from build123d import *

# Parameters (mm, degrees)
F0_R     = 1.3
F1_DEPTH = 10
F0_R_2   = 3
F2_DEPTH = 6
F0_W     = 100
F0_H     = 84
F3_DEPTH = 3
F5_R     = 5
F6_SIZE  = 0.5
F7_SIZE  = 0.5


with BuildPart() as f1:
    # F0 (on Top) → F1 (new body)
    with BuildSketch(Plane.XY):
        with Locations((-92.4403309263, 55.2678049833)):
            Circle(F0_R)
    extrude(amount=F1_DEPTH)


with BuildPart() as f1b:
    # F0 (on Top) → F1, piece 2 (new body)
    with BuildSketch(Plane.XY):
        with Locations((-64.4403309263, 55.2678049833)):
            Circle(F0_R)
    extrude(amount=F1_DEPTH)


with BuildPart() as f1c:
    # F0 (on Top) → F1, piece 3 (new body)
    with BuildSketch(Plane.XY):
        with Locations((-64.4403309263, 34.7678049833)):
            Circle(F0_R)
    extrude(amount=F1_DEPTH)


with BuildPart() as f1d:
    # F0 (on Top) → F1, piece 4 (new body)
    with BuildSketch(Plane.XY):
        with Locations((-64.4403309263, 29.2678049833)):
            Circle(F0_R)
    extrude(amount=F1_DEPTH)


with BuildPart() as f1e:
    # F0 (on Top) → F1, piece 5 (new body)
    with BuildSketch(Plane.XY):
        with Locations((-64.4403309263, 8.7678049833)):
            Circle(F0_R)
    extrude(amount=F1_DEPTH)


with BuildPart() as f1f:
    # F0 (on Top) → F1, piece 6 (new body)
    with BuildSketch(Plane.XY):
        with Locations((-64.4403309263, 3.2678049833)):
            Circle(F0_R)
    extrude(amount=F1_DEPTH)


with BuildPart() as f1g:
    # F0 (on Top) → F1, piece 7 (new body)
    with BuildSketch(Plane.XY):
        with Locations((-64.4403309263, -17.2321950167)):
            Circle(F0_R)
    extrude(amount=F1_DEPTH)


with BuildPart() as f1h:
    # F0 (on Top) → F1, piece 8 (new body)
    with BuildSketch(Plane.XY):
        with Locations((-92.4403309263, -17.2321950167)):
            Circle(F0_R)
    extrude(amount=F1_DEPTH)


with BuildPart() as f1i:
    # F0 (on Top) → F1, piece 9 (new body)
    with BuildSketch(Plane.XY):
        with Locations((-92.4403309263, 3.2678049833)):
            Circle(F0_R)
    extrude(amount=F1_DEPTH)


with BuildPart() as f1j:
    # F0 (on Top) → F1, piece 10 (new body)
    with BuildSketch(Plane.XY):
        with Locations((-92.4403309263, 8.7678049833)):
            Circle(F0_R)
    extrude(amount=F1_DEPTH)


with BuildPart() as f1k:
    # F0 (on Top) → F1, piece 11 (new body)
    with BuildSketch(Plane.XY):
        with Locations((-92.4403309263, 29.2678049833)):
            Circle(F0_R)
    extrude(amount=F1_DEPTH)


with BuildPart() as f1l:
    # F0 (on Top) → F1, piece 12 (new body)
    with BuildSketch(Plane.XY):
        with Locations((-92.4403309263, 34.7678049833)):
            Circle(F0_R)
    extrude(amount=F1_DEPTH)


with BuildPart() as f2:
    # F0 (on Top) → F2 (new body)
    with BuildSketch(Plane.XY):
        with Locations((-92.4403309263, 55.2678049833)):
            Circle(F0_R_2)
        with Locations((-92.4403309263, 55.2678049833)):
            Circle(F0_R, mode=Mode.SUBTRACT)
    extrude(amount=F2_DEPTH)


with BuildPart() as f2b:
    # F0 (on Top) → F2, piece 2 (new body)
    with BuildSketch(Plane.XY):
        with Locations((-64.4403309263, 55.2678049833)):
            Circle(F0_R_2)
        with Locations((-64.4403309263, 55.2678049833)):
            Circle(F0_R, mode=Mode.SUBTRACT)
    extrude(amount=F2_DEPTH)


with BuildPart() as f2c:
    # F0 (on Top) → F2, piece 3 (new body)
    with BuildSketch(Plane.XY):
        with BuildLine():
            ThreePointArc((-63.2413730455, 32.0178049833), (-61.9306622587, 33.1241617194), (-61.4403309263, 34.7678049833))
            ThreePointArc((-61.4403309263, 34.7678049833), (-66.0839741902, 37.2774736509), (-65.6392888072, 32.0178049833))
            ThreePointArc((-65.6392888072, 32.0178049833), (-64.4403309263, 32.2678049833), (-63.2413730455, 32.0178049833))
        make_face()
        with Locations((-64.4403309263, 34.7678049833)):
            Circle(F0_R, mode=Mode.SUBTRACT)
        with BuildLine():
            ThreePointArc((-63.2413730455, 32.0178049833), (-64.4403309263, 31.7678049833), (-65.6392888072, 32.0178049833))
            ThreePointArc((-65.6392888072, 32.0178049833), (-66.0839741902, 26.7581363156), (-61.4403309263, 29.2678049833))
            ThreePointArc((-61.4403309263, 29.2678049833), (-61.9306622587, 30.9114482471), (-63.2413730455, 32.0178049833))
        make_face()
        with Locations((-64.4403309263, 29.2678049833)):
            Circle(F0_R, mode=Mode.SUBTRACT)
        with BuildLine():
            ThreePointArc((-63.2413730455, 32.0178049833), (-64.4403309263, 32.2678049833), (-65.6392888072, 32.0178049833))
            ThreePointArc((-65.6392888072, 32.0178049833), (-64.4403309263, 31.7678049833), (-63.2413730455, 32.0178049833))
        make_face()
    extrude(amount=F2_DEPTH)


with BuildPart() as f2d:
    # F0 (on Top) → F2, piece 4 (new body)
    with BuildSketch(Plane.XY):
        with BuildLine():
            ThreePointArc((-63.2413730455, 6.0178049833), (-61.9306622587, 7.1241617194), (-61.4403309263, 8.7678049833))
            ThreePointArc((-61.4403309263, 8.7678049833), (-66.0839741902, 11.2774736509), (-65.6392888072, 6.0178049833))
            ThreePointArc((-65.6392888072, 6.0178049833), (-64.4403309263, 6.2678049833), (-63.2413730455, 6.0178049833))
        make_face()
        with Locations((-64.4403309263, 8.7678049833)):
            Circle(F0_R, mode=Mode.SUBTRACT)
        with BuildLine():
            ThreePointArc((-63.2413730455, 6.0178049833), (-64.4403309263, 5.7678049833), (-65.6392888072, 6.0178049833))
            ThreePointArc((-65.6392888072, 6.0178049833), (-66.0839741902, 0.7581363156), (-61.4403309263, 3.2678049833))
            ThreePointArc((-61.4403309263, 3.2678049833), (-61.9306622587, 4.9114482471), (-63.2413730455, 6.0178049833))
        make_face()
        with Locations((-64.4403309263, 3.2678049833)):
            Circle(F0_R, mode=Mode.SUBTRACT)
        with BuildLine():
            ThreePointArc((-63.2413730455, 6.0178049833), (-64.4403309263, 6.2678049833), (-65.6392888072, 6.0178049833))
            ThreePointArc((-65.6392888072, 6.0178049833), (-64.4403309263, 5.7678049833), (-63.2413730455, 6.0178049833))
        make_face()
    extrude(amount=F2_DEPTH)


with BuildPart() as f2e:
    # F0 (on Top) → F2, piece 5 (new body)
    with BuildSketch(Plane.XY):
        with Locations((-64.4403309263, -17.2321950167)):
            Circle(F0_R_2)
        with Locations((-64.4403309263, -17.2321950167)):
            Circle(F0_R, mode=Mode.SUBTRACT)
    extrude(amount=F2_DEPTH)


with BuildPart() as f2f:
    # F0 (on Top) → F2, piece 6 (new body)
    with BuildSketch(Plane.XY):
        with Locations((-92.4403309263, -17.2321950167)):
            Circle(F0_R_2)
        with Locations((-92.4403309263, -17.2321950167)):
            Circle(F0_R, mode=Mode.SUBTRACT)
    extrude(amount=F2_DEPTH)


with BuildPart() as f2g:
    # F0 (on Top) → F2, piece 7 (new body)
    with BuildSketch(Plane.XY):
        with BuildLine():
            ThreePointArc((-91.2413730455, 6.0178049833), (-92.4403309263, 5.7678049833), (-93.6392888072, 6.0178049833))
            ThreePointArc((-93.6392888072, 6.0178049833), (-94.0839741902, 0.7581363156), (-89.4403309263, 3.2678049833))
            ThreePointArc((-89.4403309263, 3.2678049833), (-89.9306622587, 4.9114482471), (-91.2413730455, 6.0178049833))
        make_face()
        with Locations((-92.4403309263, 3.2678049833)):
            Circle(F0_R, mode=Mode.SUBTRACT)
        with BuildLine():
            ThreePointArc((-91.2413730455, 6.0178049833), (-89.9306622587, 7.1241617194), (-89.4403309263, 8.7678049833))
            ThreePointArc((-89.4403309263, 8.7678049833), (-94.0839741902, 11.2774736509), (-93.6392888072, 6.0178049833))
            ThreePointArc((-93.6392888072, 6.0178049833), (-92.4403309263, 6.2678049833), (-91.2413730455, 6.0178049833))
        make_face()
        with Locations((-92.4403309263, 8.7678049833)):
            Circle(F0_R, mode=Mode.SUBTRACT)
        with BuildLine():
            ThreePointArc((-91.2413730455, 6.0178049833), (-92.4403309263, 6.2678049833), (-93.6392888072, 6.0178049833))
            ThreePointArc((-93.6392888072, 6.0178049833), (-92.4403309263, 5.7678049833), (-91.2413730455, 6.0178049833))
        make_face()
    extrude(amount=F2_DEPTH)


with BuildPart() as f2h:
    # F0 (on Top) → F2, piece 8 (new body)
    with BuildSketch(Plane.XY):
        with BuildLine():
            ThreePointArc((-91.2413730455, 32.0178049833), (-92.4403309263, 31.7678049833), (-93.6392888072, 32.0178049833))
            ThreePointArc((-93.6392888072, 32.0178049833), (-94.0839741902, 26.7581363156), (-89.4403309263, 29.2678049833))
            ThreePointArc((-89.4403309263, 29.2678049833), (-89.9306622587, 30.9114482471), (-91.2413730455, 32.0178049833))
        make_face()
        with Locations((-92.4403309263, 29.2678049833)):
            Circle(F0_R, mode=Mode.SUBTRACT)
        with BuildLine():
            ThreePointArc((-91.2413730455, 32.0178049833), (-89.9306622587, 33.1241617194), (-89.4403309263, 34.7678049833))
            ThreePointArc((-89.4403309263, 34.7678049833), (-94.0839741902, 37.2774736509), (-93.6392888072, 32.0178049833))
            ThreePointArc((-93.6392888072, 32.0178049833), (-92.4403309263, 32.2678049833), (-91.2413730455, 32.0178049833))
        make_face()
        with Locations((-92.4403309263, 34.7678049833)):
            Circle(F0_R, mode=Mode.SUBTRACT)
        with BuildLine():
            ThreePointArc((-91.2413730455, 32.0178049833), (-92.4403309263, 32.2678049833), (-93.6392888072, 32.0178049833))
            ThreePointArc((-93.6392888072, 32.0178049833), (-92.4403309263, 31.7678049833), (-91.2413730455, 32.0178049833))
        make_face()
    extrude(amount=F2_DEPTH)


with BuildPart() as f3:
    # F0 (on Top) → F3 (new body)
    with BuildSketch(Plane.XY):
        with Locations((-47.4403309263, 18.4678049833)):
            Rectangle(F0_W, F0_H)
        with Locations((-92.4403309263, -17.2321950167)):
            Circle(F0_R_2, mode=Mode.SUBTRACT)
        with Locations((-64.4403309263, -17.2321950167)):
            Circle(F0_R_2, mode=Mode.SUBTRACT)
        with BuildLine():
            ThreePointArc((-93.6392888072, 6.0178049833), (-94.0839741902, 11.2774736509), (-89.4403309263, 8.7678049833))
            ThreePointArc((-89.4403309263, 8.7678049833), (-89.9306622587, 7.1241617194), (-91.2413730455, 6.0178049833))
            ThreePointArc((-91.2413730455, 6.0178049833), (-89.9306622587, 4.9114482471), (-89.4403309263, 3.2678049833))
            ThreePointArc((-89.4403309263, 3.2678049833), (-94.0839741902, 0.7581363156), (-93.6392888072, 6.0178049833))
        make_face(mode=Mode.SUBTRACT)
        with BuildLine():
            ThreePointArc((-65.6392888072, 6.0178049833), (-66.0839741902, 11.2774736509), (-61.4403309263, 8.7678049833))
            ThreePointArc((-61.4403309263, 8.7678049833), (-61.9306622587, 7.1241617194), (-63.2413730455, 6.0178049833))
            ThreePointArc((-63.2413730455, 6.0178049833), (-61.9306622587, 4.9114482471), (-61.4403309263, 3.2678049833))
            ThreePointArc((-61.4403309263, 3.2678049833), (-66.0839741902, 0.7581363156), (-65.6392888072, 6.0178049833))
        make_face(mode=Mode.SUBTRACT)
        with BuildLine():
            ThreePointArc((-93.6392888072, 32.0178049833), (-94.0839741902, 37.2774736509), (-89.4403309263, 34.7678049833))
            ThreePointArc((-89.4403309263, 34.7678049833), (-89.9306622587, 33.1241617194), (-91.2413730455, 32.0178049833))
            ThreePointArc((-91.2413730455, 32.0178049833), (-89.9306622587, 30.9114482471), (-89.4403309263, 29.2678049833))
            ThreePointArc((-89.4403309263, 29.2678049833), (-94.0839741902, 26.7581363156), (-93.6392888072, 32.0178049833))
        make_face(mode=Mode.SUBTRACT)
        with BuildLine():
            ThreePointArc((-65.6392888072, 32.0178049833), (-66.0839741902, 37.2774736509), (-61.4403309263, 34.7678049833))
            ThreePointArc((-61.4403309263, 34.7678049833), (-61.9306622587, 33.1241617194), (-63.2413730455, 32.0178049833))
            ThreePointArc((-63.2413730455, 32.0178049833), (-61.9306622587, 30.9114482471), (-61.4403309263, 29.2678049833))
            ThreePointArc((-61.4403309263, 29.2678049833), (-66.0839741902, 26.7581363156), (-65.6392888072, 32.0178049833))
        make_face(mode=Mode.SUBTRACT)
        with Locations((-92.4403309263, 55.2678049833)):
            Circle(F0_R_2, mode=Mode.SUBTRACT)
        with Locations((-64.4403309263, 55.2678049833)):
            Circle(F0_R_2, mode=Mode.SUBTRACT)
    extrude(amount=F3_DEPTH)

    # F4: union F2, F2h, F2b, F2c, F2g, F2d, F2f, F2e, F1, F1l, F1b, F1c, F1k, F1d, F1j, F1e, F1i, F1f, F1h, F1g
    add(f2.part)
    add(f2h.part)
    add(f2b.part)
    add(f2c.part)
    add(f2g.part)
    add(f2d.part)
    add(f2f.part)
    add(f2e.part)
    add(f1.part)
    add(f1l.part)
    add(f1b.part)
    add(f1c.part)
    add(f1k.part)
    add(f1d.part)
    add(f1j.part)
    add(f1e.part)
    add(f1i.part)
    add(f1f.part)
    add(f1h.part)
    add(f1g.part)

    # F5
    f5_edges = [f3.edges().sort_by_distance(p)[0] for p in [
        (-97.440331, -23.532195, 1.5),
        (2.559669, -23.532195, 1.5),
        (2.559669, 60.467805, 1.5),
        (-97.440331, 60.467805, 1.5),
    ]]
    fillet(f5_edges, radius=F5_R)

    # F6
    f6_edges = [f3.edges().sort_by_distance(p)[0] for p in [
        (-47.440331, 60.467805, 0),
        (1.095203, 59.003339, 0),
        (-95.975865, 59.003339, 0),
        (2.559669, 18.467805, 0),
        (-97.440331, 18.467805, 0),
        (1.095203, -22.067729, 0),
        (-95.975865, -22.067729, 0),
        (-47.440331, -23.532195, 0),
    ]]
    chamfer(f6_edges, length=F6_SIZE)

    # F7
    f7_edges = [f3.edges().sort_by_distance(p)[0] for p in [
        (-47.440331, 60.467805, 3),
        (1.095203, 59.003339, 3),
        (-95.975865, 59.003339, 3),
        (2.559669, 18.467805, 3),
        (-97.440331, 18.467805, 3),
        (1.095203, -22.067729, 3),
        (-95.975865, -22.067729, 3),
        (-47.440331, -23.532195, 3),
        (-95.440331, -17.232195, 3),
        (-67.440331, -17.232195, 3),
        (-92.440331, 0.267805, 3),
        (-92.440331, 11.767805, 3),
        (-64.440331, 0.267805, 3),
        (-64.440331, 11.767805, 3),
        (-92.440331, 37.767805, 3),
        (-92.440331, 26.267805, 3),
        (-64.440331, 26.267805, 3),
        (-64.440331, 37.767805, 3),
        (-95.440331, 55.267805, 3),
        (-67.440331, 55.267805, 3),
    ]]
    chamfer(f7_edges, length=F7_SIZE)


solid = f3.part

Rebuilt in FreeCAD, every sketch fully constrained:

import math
import FreeCAD as App
import Part
import Sketcher

V = App.Vector


def edges_at(feature, points):
    """Names of the edges that pass closest to the given points."""
    edges = feature.Shape.Edges
    near = lambda p: min(range(len(edges)), key=lambda i: edges[i].distToShape(Part.Vertex(*p))[0])
    return sorted({f"Edge{near(p) + 1}" for p in points})

doc = App.newDocument("Part")
params = doc.addObject("Spreadsheet::Sheet", "Params")
for row, (alias, value) in enumerate([
    ("sketch1_diameter", "2.6 mm"),
    ("pad1_length", "10 mm"),
    ("sketch2_diameter", "2.6 mm"),
    ("pad2_length", "10 mm"),
    ("sketch3_diameter", "2.6 mm"),
    ("pad3_length", "10 mm"),
    ("sketch4_diameter", "2.6 mm"),
    ("pad4_length", "10 mm"),
    ("sketch5_diameter", "2.6 mm"),
    ("pad5_length", "10 mm"),
    ("sketch6_diameter", "2.6 mm"),
    ("pad6_length", "10 mm"),
    ("sketch7_diameter", "2.6 mm"),
    ("pad7_length", "10 mm"),
    ("sketch8_diameter", "2.6 mm"),
    ("pad8_length", "10 mm"),
    ("sketch9_diameter", "2.6 mm"),
    ("pad9_length", "10 mm"),
    ("sketch10_diameter", "2.6 mm"),
    ("pad10_length", "10 mm"),
    ("sketch11_diameter", "2.6 mm"),
    ("pad11_length", "10 mm"),
    ("sketch12_diameter", "2.6 mm"),
    ("pad12_length", "10 mm"),
    ("sketch13_diameter", "6 mm"),
    ("sketch13_diameter2", "2.6 mm"),
    ("pad13_length", "6 mm"),
    ("sketch14_diameter", "6 mm"),
    ("sketch14_diameter2", "2.6 mm"),
    ("pad14_length", "6 mm"),
    ("sketch15_radius", "3 mm"),
    ("sketch15_diameter", "2.6 mm"),
    ("pad15_length", "6 mm"),
    ("sketch16_radius", "3 mm"),
    ("sketch16_diameter", "2.6 mm"),
    ("pad16_length", "6 mm"),
    ("sketch17_diameter", "6 mm"),
    ("sketch17_diameter2", "2.6 mm"),
    ("pad17_length", "6 mm"),
    ("sketch18_diameter", "6 mm"),
    ("sketch18_diameter2", "2.6 mm"),
    ("pad18_length", "6 mm"),
    ("sketch19_radius", "3 mm"),
    ("sketch19_diameter", "2.6 mm"),
    ("pad19_length", "6 mm"),
    ("sketch20_radius", "3 mm"),
    ("sketch20_diameter", "2.6 mm"),
    ("pad20_length", "6 mm"),
    ("sketch21_diameter", "6 mm"),
    ("sketch21_width", "100 mm"),
    ("sketch21_height", "84 mm"),
    ("pad21_length", "3 mm"),
    ("fillet_radius", "5 mm"),
    ("chamfer_size", "0.5 mm"),
    ("chamfer2_size", "0.5 mm"),
], start=1):
    params.set(f"A{row}", alias)
    params.set(f"B{row}", "=" + value)
    params.setAlias(f"B{row}", alias)

body = doc.addObject("PartDesign::Body", "Body")

# Sketch on XY plane
sketch1 = body.newObject("Sketcher::SketchObject", "Sketch")
sketch1.AttachmentSupport = (doc.getObject("XY_Plane"), [""])
sketch1.MapMode = "FlatFace"
sketch1.addGeometry(Part.Circle(V(-92.4, 55.3, 0), V(0, 0, 1), 1.3), False)
sketch1.addConstraint(Sketcher.Constraint("Diameter", 0, 2.6))
sketch1.addConstraint(Sketcher.Constraint("DistanceX", 0, 3, -1, 1, 92.440331))
sketch1.addConstraint(Sketcher.Constraint("DistanceY", -1, 1, 0, 3, 55.267805))
sketch1.setExpression("Constraints[0]", "Params.sketch1_diameter")
pad1 = body.newObject("PartDesign::Pad", "Pad")
pad1.Profile = sketch1
pad1.setExpression("Length", "Params.pad1_length")
body2 = doc.addObject("PartDesign::Body", "Body001")

# Sketch on XY plane
sketch2 = body2.newObject("Sketcher::SketchObject", "Sketch001")
sketch2.AttachmentSupport = (doc.getObject("XY_Plane001"), [""])
sketch2.MapMode = "FlatFace"
sketch2.addGeometry(Part.Circle(V(-64.4, 55.3, 0), V(0, 0, 1), 1.3), False)
sketch2.addConstraint(Sketcher.Constraint("Diameter", 0, 2.6))
sketch2.addConstraint(Sketcher.Constraint("DistanceX", 0, 3, -1, 1, 64.440331))
sketch2.addConstraint(Sketcher.Constraint("DistanceY", -1, 1, 0, 3, 55.267805))
sketch2.setExpression("Constraints[0]", "Params.sketch2_diameter")
pad2 = body2.newObject("PartDesign::Pad", "Pad001")
pad2.Profile = sketch2
pad2.setExpression("Length", "Params.pad2_length")
body3 = doc.addObject("PartDesign::Body", "Body002")

# Sketch on XY plane
sketch3 = body3.newObject("Sketcher::SketchObject", "Sketch002")
sketch3.AttachmentSupport = (doc.getObject("XY_Plane002"), [""])
sketch3.MapMode = "FlatFace"
sketch3.addGeometry(Part.Circle(V(-64.4, 34.8, 0), V(0, 0, 1), 1.3), False)
sketch3.addConstraint(Sketcher.Constraint("Diameter", 0, 2.6))
sketch3.addConstraint(Sketcher.Constraint("DistanceX", 0, 3, -1, 1, 64.440331))
sketch3.addConstraint(Sketcher.Constraint("DistanceY", -1, 1, 0, 3, 34.767805))
sketch3.setExpression("Constraints[0]", "Params.sketch3_diameter")
pad3 = body3.newObject("PartDesign::Pad", "Pad002")
pad3.Profile = sketch3
pad3.setExpression("Length", "Params.pad3_length")
body4 = doc.addObject("PartDesign::Body", "Body003")

# Sketch on XY plane
sketch4 = body4.newObject("Sketcher::SketchObject", "Sketch003")
sketch4.AttachmentSupport = (doc.getObject("XY_Plane003"), [""])
sketch4.MapMode = "FlatFace"
sketch4.addGeometry(Part.Circle(V(-64.4, 29.3, 0), V(0, 0, 1), 1.3), False)
sketch4.addConstraint(Sketcher.Constraint("Diameter", 0, 2.6))
sketch4.addConstraint(Sketcher.Constraint("DistanceX", 0, 3, -1, 1, 64.440331))
sketch4.addConstraint(Sketcher.Constraint("DistanceY", -1, 1, 0, 3, 29.267805))
sketch4.setExpression("Constraints[0]", "Params.sketch4_diameter")
pad4 = body4.newObject("PartDesign::Pad", "Pad003")
pad4.Profile = sketch4
pad4.setExpression("Length", "Params.pad4_length")
body5 = doc.addObject("PartDesign::Body", "Body004")

# Sketch on XY plane
sketch5 = body5.newObject("Sketcher::SketchObject", "Sketch004")
sketch5.AttachmentSupport = (doc.getObject("XY_Plane004"), [""])
sketch5.MapMode = "FlatFace"
sketch5.addGeometry(Part.Circle(V(-64.4, 8.8, 0), V(0, 0, 1), 1.3), False)
sketch5.addConstraint(Sketcher.Constraint("Diameter", 0, 2.6))
sketch5.addConstraint(Sketcher.Constraint("DistanceX", 0, 3, -1, 1, 64.440331))
sketch5.addConstraint(Sketcher.Constraint("DistanceY", -1, 1, 0, 3, 8.767805))
sketch5.setExpression("Constraints[0]", "Params.sketch5_diameter")
pad5 = body5.newObject("PartDesign::Pad", "Pad004")
pad5.Profile = sketch5
pad5.setExpression("Length", "Params.pad5_length")
body6 = doc.addObject("PartDesign::Body", "Body005")

# Sketch on XY plane
sketch6 = body6.newObject("Sketcher::SketchObject", "Sketch005")
sketch6.AttachmentSupport = (doc.getObject("XY_Plane005"), [""])
sketch6.MapMode = "FlatFace"
sketch6.addGeometry(Part.Circle(V(-64.4, 3.3, 0), V(0, 0, 1), 1.3), False)
sketch6.addConstraint(Sketcher.Constraint("Diameter", 0, 2.6))
sketch6.addConstraint(Sketcher.Constraint("DistanceX", 0, 3, -1, 1, 64.440331))
sketch6.addConstraint(Sketcher.Constraint("DistanceY", -1, 1, 0, 3, 3.267805))
sketch6.setExpression("Constraints[0]", "Params.sketch6_diameter")
pad6 = body6.newObject("PartDesign::Pad", "Pad005")
pad6.Profile = sketch6
pad6.setExpression("Length", "Params.pad6_length")
body7 = doc.addObject("PartDesign::Body", "Body006")

# Sketch on XY plane
sketch7 = body7.newObject("Sketcher::SketchObject", "Sketch006")
sketch7.AttachmentSupport = (doc.getObject("XY_Plane006"), [""])
sketch7.MapMode = "FlatFace"
sketch7.addGeometry(Part.Circle(V(-64.4, -17.2, 0), V(0, 0, 1), 1.3), False)
sketch7.addConstraint(Sketcher.Constraint("Diameter", 0, 2.6))
sketch7.addConstraint(Sketcher.Constraint("DistanceX", 0, 3, -1, 1, 64.440331))
sketch7.addConstraint(Sketcher.Constraint("DistanceY", 0, 3, -1, 1, 17.232195))
sketch7.setExpression("Constraints[0]", "Params.sketch7_diameter")
pad7 = body7.newObject("PartDesign::Pad", "Pad006")
pad7.Profile = sketch7
pad7.setExpression("Length", "Params.pad7_length")
body8 = doc.addObject("PartDesign::Body", "Body007")

# Sketch on XY plane
sketch8 = body8.newObject("Sketcher::SketchObject", "Sketch007")
sketch8.AttachmentSupport = (doc.getObject("XY_Plane007"), [""])
sketch8.MapMode = "FlatFace"
sketch8.addGeometry(Part.Circle(V(-92.4, -17.2, 0), V(0, 0, 1), 1.3), False)
sketch8.addConstraint(Sketcher.Constraint("Diameter", 0, 2.6))
sketch8.addConstraint(Sketcher.Constraint("DistanceX", 0, 3, -1, 1, 92.440331))
sketch8.addConstraint(Sketcher.Constraint("DistanceY", 0, 3, -1, 1, 17.232195))
sketch8.setExpression("Constraints[0]", "Params.sketch8_diameter")
pad8 = body8.newObject("PartDesign::Pad", "Pad007")
pad8.Profile = sketch8
pad8.setExpression("Length", "Params.pad8_length")
body9 = doc.addObject("PartDesign::Body", "Body008")

# Sketch on XY plane
sketch9 = body9.newObject("Sketcher::SketchObject", "Sketch008")
sketch9.AttachmentSupport = (doc.getObject("XY_Plane008"), [""])
sketch9.MapMode = "FlatFace"
sketch9.addGeometry(Part.Circle(V(-92.4, 3.3, 0), V(0, 0, 1), 1.3), False)
sketch9.addConstraint(Sketcher.Constraint("Diameter", 0, 2.6))
sketch9.addConstraint(Sketcher.Constraint("DistanceX", 0, 3, -1, 1, 92.440331))
sketch9.addConstraint(Sketcher.Constraint("DistanceY", -1, 1, 0, 3, 3.267805))
sketch9.setExpression("Constraints[0]", "Params.sketch9_diameter")
pad9 = body9.newObject("PartDesign::Pad", "Pad008")
pad9.Profile = sketch9
pad9.setExpression("Length", "Params.pad9_length")
body10 = doc.addObject("PartDesign::Body", "Body009")

# Sketch on XY plane
sketch10 = body10.newObject("Sketcher::SketchObject", "Sketch009")
sketch10.AttachmentSupport = (doc.getObject("XY_Plane009"), [""])
sketch10.MapMode = "FlatFace"
sketch10.addGeometry(Part.Circle(V(-92.4, 8.8, 0), V(0, 0, 1), 1.3), False)
sketch10.addConstraint(Sketcher.Constraint("Diameter", 0, 2.6))
sketch10.addConstraint(Sketcher.Constraint("DistanceX", 0, 3, -1, 1, 92.440331))
sketch10.addConstraint(Sketcher.Constraint("DistanceY", -1, 1, 0, 3, 8.767805))
sketch10.setExpression("Constraints[0]", "Params.sketch10_diameter")
pad10 = body10.newObject("PartDesign::Pad", "Pad009")
pad10.Profile = sketch10
pad10.setExpression("Length", "Params.pad10_length")
body11 = doc.addObject("PartDesign::Body", "Body010")

# Sketch on XY plane
sketch11 = body11.newObject("Sketcher::SketchObject", "Sketch010")
sketch11.AttachmentSupport = (doc.getObject("XY_Plane010"), [""])
sketch11.MapMode = "FlatFace"
sketch11.addGeometry(Part.Circle(V(-92.4, 29.3, 0), V(0, 0, 1), 1.3), False)
sketch11.addConstraint(Sketcher.Constraint("Diameter", 0, 2.6))
sketch11.addConstraint(Sketcher.Constraint("DistanceX", 0, 3, -1, 1, 92.440331))
sketch11.addConstraint(Sketcher.Constraint("DistanceY", -1, 1, 0, 3, 29.267805))
sketch11.setExpression("Constraints[0]", "Params.sketch11_diameter")
pad11 = body11.newObject("PartDesign::Pad", "Pad010")
pad11.Profile = sketch11
pad11.setExpression("Length", "Params.pad11_length")
body12 = doc.addObject("PartDesign::Body", "Body011")

# Sketch on XY plane
sketch12 = body12.newObject("Sketcher::SketchObject", "Sketch011")
sketch12.AttachmentSupport = (doc.getObject("XY_Plane011"), [""])
sketch12.MapMode = "FlatFace"
sketch12.addGeometry(Part.Circle(V(-92.4, 34.8, 0), V(0, 0, 1), 1.3), False)
sketch12.addConstraint(Sketcher.Constraint("Diameter", 0, 2.6))
sketch12.addConstraint(Sketcher.Constraint("DistanceX", 0, 3, -1, 1, 92.440331))
sketch12.addConstraint(Sketcher.Constraint("DistanceY", -1, 1, 0, 3, 34.767805))
sketch12.setExpression("Constraints[0]", "Params.sketch12_diameter")
pad12 = body12.newObject("PartDesign::Pad", "Pad011")
pad12.Profile = sketch12
pad12.setExpression("Length", "Params.pad12_length")
body13 = doc.addObject("PartDesign::Body", "Body012")

# Sketch on XY plane
sketch13 = body13.newObject("Sketcher::SketchObject", "Sketch012")
sketch13.AttachmentSupport = (doc.getObject("XY_Plane012"), [""])
sketch13.MapMode = "FlatFace"
sketch13.addGeometry(Part.Circle(V(-92.4, 55.3, 0), V(0, 0, 1), 3), False)
sketch13.addGeometry(Part.Circle(V(-92.4, 55.3, 0), V(0, 0, 1), 1.3), False)
sketch13.addConstraint(Sketcher.Constraint("Coincident", 1, 3, 0, 3))
sketch13.addConstraint(Sketcher.Constraint("Diameter", 0, 6.0))
sketch13.addConstraint(Sketcher.Constraint("Diameter", 1, 2.6))
sketch13.addConstraint(Sketcher.Constraint("DistanceX", 0, 3, -1, 1, 92.440331))
sketch13.addConstraint(Sketcher.Constraint("DistanceY", -1, 1, 0, 3, 55.267805))
sketch13.setExpression("Constraints[1]", "Params.sketch13_diameter")
sketch13.setExpression("Constraints[2]", "Params.sketch13_diameter2")
pad13 = body13.newObject("PartDesign::Pad", "Pad012")
pad13.Profile = sketch13
pad13.setExpression("Length", "Params.pad13_length")
body14 = doc.addObject("PartDesign::Body", "Body013")

# Sketch on XY plane
sketch14 = body14.newObject("Sketcher::SketchObject", "Sketch013")
sketch14.AttachmentSupport = (doc.getObject("XY_Plane013"), [""])
sketch14.MapMode = "FlatFace"
sketch14.addGeometry(Part.Circle(V(-64.4, 55.3, 0), V(0, 0, 1), 3), False)
sketch14.addGeometry(Part.Circle(V(-64.4, 55.3, 0), V(0, 0, 1), 1.3), False)
sketch14.addConstraint(Sketcher.Constraint("Coincident", 1, 3, 0, 3))
sketch14.addConstraint(Sketcher.Constraint("Diameter", 0, 6.0))
sketch14.addConstraint(Sketcher.Constraint("Diameter", 1, 2.6))
sketch14.addConstraint(Sketcher.Constraint("DistanceX", 0, 3, -1, 1, 64.440331))
sketch14.addConstraint(Sketcher.Constraint("DistanceY", -1, 1, 0, 3, 55.267805))
sketch14.setExpression("Constraints[1]", "Params.sketch14_diameter")
sketch14.setExpression("Constraints[2]", "Params.sketch14_diameter2")
pad14 = body14.newObject("PartDesign::Pad", "Pad013")
pad14.Profile = sketch14
pad14.setExpression("Length", "Params.pad14_length")
body15 = doc.addObject("PartDesign::Body", "Body014")

# Sketch on XY plane
sketch15 = body15.newObject("Sketcher::SketchObject", "Sketch014")
sketch15.AttachmentSupport = (doc.getObject("XY_Plane014"), [""])
sketch15.MapMode = "FlatFace"
sketch15.addGeometry(Part.ArcOfCircle(Part.Circle(V(-64.4, 34.8, 0), V(0, 0, 1), 3), math.radians(-66), math.radians(0)), False)
sketch15.addGeometry(Part.ArcOfCircle(Part.Circle(V(-64.4, 34.8, 0), V(0, 0, 1), 3), math.radians(0), math.radians(246)), False)
sketch15.addGeometry(Part.ArcOfCircle(Part.Circle(V(-64.4, 29.3, 0), V(0, 0, 1), 3), math.radians(114), math.radians(360)), False)
sketch15.addGeometry(Part.ArcOfCircle(Part.Circle(V(-64.4, 29.3, 0), V(0, 0, 1), 3), math.radians(0), math.radians(66)), False)
sketch15.addGeometry(Part.Circle(V(-64.4, 34.8, 0), V(0, 0, 1), 1.3), False)
sketch15.addGeometry(Part.Circle(V(-64.4, 29.3, 0), V(0, 0, 1), 1.3), False)
sketch15.addConstraint(Sketcher.Constraint("Tangent", 0, 2, 1, 1))
sketch15.addConstraint(Sketcher.Constraint("Coincident", 1, 2, 2, 1))
sketch15.addConstraint(Sketcher.Constraint("Tangent", 2, 2, 3, 1))
sketch15.addConstraint(Sketcher.Constraint("Coincident", 3, 2, 0, 1))
sketch15.addConstraint(Sketcher.Constraint("Coincident", 4, 3, 0, 3))
sketch15.addConstraint(Sketcher.Constraint("Coincident", 5, 3, 2, 3))
sketch15.addConstraint(Sketcher.Constraint("Equal", 0, 1))
sketch15.addConstraint(Sketcher.Constraint("Equal", 1, 2))
sketch15.addConstraint(Sketcher.Constraint("Equal", 2, 3))
sketch15.addConstraint(Sketcher.Constraint("Equal", 4, 5))
sketch15.addConstraint(Sketcher.Constraint("Horizontal", 4, 3, 0, 2))
sketch15.addConstraint(Sketcher.Constraint("Horizontal", 5, 3, 2, 2))
sketch15.addConstraint(Sketcher.Constraint("Horizontal", 1, 2, 3, 2))
sketch15.addConstraint(Sketcher.Constraint("Radius", 0, 3.0))
sketch15.addConstraint(Sketcher.Constraint("Diameter", 4, 2.6))
sketch15.addConstraint(Sketcher.Constraint("DistanceY", 2, 3, 0, 3, 5.5))
sketch15.addConstraint(Sketcher.Constraint("DistanceX", 0, 3, -1, 1, 64.440331))
sketch15.addConstraint(Sketcher.Constraint("DistanceY", -1, 1, 0, 3, 34.767805))
sketch15.setExpression("Constraints[13]", "Params.sketch15_radius")
sketch15.setExpression("Constraints[14]", "Params.sketch15_diameter")
pad15 = body15.newObject("PartDesign::Pad", "Pad014")
pad15.Profile = sketch15
pad15.setExpression("Length", "Params.pad15_length")
body16 = doc.addObject("PartDesign::Body", "Body015")

# Sketch on XY plane
sketch16 = body16.newObject("Sketcher::SketchObject", "Sketch015")
sketch16.AttachmentSupport = (doc.getObject("XY_Plane015"), [""])
sketch16.MapMode = "FlatFace"
sketch16.addGeometry(Part.ArcOfCircle(Part.Circle(V(-64.4, 8.8, 0), V(0, 0, 1), 3), math.radians(-66), math.radians(0)), False)
sketch16.addGeometry(Part.ArcOfCircle(Part.Circle(V(-64.4, 8.8, 0), V(0, 0, 1), 3), math.radians(0), math.radians(246)), False)
sketch16.addGeometry(Part.ArcOfCircle(Part.Circle(V(-64.4, 3.3, 0), V(0, 0, 1), 3), math.radians(114), math.radians(360)), False)
sketch16.addGeometry(Part.ArcOfCircle(Part.Circle(V(-64.4, 3.3, 0), V(0, 0, 1), 3), math.radians(0), math.radians(66)), False)
sketch16.addGeometry(Part.Circle(V(-64.4, 8.8, 0), V(0, 0, 1), 1.3), False)
sketch16.addGeometry(Part.Circle(V(-64.4, 3.3, 0), V(0, 0, 1), 1.3), False)
sketch16.addConstraint(Sketcher.Constraint("Tangent", 0, 2, 1, 1))
sketch16.addConstraint(Sketcher.Constraint("Coincident", 1, 2, 2, 1))
sketch16.addConstraint(Sketcher.Constraint("Tangent", 2, 2, 3, 1))
sketch16.addConstraint(Sketcher.Constraint("Coincident", 3, 2, 0, 1))
sketch16.addConstraint(Sketcher.Constraint("Coincident", 4, 3, 0, 3))
sketch16.addConstraint(Sketcher.Constraint("Coincident", 5, 3, 2, 3))
sketch16.addConstraint(Sketcher.Constraint("Equal", 0, 1))
sketch16.addConstraint(Sketcher.Constraint("Equal", 1, 2))
sketch16.addConstraint(Sketcher.Constraint("Equal", 2, 3))
sketch16.addConstraint(Sketcher.Constraint("Equal", 4, 5))
sketch16.addConstraint(Sketcher.Constraint("Horizontal", 4, 3, 0, 2))
sketch16.addConstraint(Sketcher.Constraint("Horizontal", 5, 3, 2, 2))
sketch16.addConstraint(Sketcher.Constraint("Horizontal", 1, 2, 3, 2))
sketch16.addConstraint(Sketcher.Constraint("Radius", 0, 3.0))
sketch16.addConstraint(Sketcher.Constraint("Diameter", 4, 2.6))
sketch16.addConstraint(Sketcher.Constraint("DistanceY", 2, 3, 0, 3, 5.5))
sketch16.addConstraint(Sketcher.Constraint("DistanceX", 0, 3, -1, 1, 64.440331))
sketch16.addConstraint(Sketcher.Constraint("DistanceY", -1, 1, 0, 3, 8.767805))
sketch16.setExpression("Constraints[13]", "Params.sketch16_radius")
sketch16.setExpression("Constraints[14]", "Params.sketch16_diameter")
pad16 = body16.newObject("PartDesign::Pad", "Pad015")
pad16.Profile = sketch16
pad16.setExpression("Length", "Params.pad16_length")
body17 = doc.addObject("PartDesign::Body", "Body016")

# Sketch on XY plane
sketch17 = body17.newObject("Sketcher::SketchObject", "Sketch016")
sketch17.AttachmentSupport = (doc.getObject("XY_Plane016"), [""])
sketch17.MapMode = "FlatFace"
sketch17.addGeometry(Part.Circle(V(-64.4, -17.2, 0), V(0, 0, 1), 3), False)
sketch17.addGeometry(Part.Circle(V(-64.4, -17.2, 0), V(0, 0, 1), 1.3), False)
sketch17.addConstraint(Sketcher.Constraint("Coincident", 1, 3, 0, 3))
sketch17.addConstraint(Sketcher.Constraint("Diameter", 0, 6.0))
sketch17.addConstraint(Sketcher.Constraint("Diameter", 1, 2.6))
sketch17.addConstraint(Sketcher.Constraint("DistanceX", 0, 3, -1, 1, 64.440331))
sketch17.addConstraint(Sketcher.Constraint("DistanceY", 0, 3, -1, 1, 17.232195))
sketch17.setExpression("Constraints[1]", "Params.sketch17_diameter")
sketch17.setExpression("Constraints[2]", "Params.sketch17_diameter2")
pad17 = body17.newObject("PartDesign::Pad", "Pad016")
pad17.Profile = sketch17
pad17.setExpression("Length", "Params.pad17_length")
body18 = doc.addObject("PartDesign::Body", "Body017")

# Sketch on XY plane
sketch18 = body18.newObject("Sketcher::SketchObject", "Sketch017")
sketch18.AttachmentSupport = (doc.getObject("XY_Plane017"), [""])
sketch18.MapMode = "FlatFace"
sketch18.addGeometry(Part.Circle(V(-92.4, -17.2, 0), V(0, 0, 1), 3), False)
sketch18.addGeometry(Part.Circle(V(-92.4, -17.2, 0), V(0, 0, 1), 1.3), False)
sketch18.addConstraint(Sketcher.Constraint("Coincident", 1, 3, 0, 3))
sketch18.addConstraint(Sketcher.Constraint("Diameter", 0, 6.0))
sketch18.addConstraint(Sketcher.Constraint("Diameter", 1, 2.6))
sketch18.addConstraint(Sketcher.Constraint("DistanceX", 0, 3, -1, 1, 92.440331))
sketch18.addConstraint(Sketcher.Constraint("DistanceY", 0, 3, -1, 1, 17.232195))
sketch18.setExpression("Constraints[1]", "Params.sketch18_diameter")
sketch18.setExpression("Constraints[2]", "Params.sketch18_diameter2")
pad18 = body18.newObject("PartDesign::Pad", "Pad017")
pad18.Profile = sketch18
pad18.setExpression("Length", "Params.pad18_length")
body19 = doc.addObject("PartDesign::Body", "Body018")

# Sketch on XY plane
sketch19 = body19.newObject("Sketcher::SketchObject", "Sketch018")
sketch19.AttachmentSupport = (doc.getObject("XY_Plane018"), [""])
sketch19.MapMode = "FlatFace"
sketch19.addGeometry(Part.ArcOfCircle(Part.Circle(V(-92.4, 3.3, 0), V(0, 0, 1), 3), math.radians(0), math.radians(66)), False)
sketch19.addGeometry(Part.ArcOfCircle(Part.Circle(V(-92.4, 8.8, 0), V(0, 0, 1), 3), math.radians(-66), math.radians(0)), False)
sketch19.addGeometry(Part.ArcOfCircle(Part.Circle(V(-92.4, 8.8, 0), V(0, 0, 1), 3), math.radians(0), math.radians(246)), False)
sketch19.addGeometry(Part.ArcOfCircle(Part.Circle(V(-92.4, 3.3, 0), V(0, 0, 1), 3), math.radians(114), math.radians(360)), False)
sketch19.addGeometry(Part.Circle(V(-92.4, 3.3, 0), V(0, 0, 1), 1.3), False)
sketch19.addGeometry(Part.Circle(V(-92.4, 8.8, 0), V(0, 0, 1), 1.3), False)
sketch19.addConstraint(Sketcher.Constraint("Coincident", 0, 2, 1, 1))
sketch19.addConstraint(Sketcher.Constraint("Tangent", 1, 2, 2, 1))
sketch19.addConstraint(Sketcher.Constraint("Coincident", 2, 2, 3, 1))
sketch19.addConstraint(Sketcher.Constraint("Tangent", 3, 2, 0, 1))
sketch19.addConstraint(Sketcher.Constraint("Coincident", 4, 3, 0, 3))
sketch19.addConstraint(Sketcher.Constraint("Coincident", 5, 3, 1, 3))
sketch19.addConstraint(Sketcher.Constraint("Equal", 0, 1))
sketch19.addConstraint(Sketcher.Constraint("Equal", 1, 2))
sketch19.addConstraint(Sketcher.Constraint("Equal", 2, 3))
sketch19.addConstraint(Sketcher.Constraint("Equal", 4, 5))
sketch19.addConstraint(Sketcher.Constraint("Horizontal", 5, 3, 1, 2))
sketch19.addConstraint(Sketcher.Constraint("Horizontal", 0, 2, 2, 2))
sketch19.addConstraint(Sketcher.Constraint("Horizontal", 4, 3, 3, 2))
sketch19.addConstraint(Sketcher.Constraint("Radius", 0, 3.0))
sketch19.addConstraint(Sketcher.Constraint("Diameter", 4, 2.6))
sketch19.addConstraint(Sketcher.Constraint("DistanceY", 0, 3, 1, 3, 5.5))
sketch19.addConstraint(Sketcher.Constraint("DistanceX", 0, 3, -1, 1, 92.440331))
sketch19.addConstraint(Sketcher.Constraint("DistanceY", -1, 1, 0, 3, 3.267805))
sketch19.setExpression("Constraints[13]", "Params.sketch19_radius")
sketch19.setExpression("Constraints[14]", "Params.sketch19_diameter")
pad19 = body19.newObject("PartDesign::Pad", "Pad018")
pad19.Profile = sketch19
pad19.setExpression("Length", "Params.pad19_length")
body20 = doc.addObject("PartDesign::Body", "Body019")

# Sketch on XY plane
sketch20 = body20.newObject("Sketcher::SketchObject", "Sketch019")
sketch20.AttachmentSupport = (doc.getObject("XY_Plane019"), [""])
sketch20.MapMode = "FlatFace"
sketch20.addGeometry(Part.ArcOfCircle(Part.Circle(V(-92.4, 29.3, 0), V(0, 0, 1), 3), math.radians(0), math.radians(66)), False)
sketch20.addGeometry(Part.ArcOfCircle(Part.Circle(V(-92.4, 34.8, 0), V(0, 0, 1), 3), math.radians(-66), math.radians(0)), False)
sketch20.addGeometry(Part.ArcOfCircle(Part.Circle(V(-92.4, 34.8, 0), V(0, 0, 1), 3), math.radians(0), math.radians(246)), False)
sketch20.addGeometry(Part.ArcOfCircle(Part.Circle(V(-92.4, 29.3, 0), V(0, 0, 1), 3), math.radians(114), math.radians(360)), False)
sketch20.addGeometry(Part.Circle(V(-92.4, 29.3, 0), V(0, 0, 1), 1.3), False)
sketch20.addGeometry(Part.Circle(V(-92.4, 34.8, 0), V(0, 0, 1), 1.3), False)
sketch20.addConstraint(Sketcher.Constraint("Coincident", 0, 2, 1, 1))
sketch20.addConstraint(Sketcher.Constraint("Tangent", 1, 2, 2, 1))
sketch20.addConstraint(Sketcher.Constraint("Coincident", 2, 2, 3, 1))
sketch20.addConstraint(Sketcher.Constraint("Tangent", 3, 2, 0, 1))
sketch20.addConstraint(Sketcher.Constraint("Coincident", 4, 3, 0, 3))
sketch20.addConstraint(Sketcher.Constraint("Coincident", 5, 3, 1, 3))
sketch20.addConstraint(Sketcher.Constraint("Equal", 0, 1))
sketch20.addConstraint(Sketcher.Constraint("Equal", 1, 2))
sketch20.addConstraint(Sketcher.Constraint("Equal", 2, 3))
sketch20.addConstraint(Sketcher.Constraint("Equal", 4, 5))
sketch20.addConstraint(Sketcher.Constraint("Horizontal", 5, 3, 1, 2))
sketch20.addConstraint(Sketcher.Constraint("Horizontal", 0, 2, 2, 2))
sketch20.addConstraint(Sketcher.Constraint("Horizontal", 4, 3, 3, 2))
sketch20.addConstraint(Sketcher.Constraint("Radius", 0, 3.0))
sketch20.addConstraint(Sketcher.Constraint("Diameter", 4, 2.6))
sketch20.addConstraint(Sketcher.Constraint("DistanceY", 0, 3, 1, 3, 5.5))
sketch20.addConstraint(Sketcher.Constraint("DistanceX", 0, 3, -1, 1, 92.440331))
sketch20.addConstraint(Sketcher.Constraint("DistanceY", -1, 1, 0, 3, 29.267805))
sketch20.setExpression("Constraints[13]", "Params.sketch20_radius")
sketch20.setExpression("Constraints[14]", "Params.sketch20_diameter")
pad20 = body20.newObject("PartDesign::Pad", "Pad019")
pad20.Profile = sketch20
pad20.setExpression("Length", "Params.pad20_length")
body21 = doc.addObject("PartDesign::Body", "Body020")

# Sketch on XY plane
sketch21 = body21.newObject("Sketcher::SketchObject", "Sketch020")
sketch21.AttachmentSupport = (doc.getObject("XY_Plane020"), [""])
sketch21.MapMode = "FlatFace"
sketch21.addGeometry(Part.LineSegment(V(-97.4, 60.5, 0), V(-97.4, -23.5, 0)), False)
sketch21.addGeometry(Part.LineSegment(V(-97.4, -23.5, 0), V(2.6, -23.5, 0)), False)
sketch21.addGeometry(Part.LineSegment(V(2.6, -23.5, 0), V(2.6, 60.5, 0)), False)
sketch21.addGeometry(Part.LineSegment(V(2.6, 60.5, 0), V(-97.4, 60.5, 0)), False)
sketch21.addGeometry(Part.Circle(V(-92.4, -17.2, 0), V(0, 0, 1), 3), False)
sketch21.addGeometry(Part.ArcOfCircle(Part.Circle(V(-92.4, 3.3, 0), V(0, 0, 1), 3), math.radians(114), math.radians(360)), False)
sketch21.addGeometry(Part.ArcOfCircle(Part.Circle(V(-92.4, 8.8, 0), V(0, 0, 1), 3), math.radians(0), math.radians(246)), False)
sketch21.addGeometry(Part.ArcOfCircle(Part.Circle(V(-92.4, 8.8, 0), V(0, 0, 1), 3), math.radians(-66), math.radians(0)), False)
sketch21.addGeometry(Part.ArcOfCircle(Part.Circle(V(-92.4, 3.3, 0), V(0, 0, 1), 3), math.radians(0), math.radians(66)), False)
sketch21.addGeometry(Part.Circle(V(-64.4, -17.2, 0), V(0, 0, 1), 3), False)
sketch21.addGeometry(Part.ArcOfCircle(Part.Circle(V(-64.4, 3.3, 0), V(0, 0, 1), 3), math.radians(114), math.radians(360)), False)
sketch21.addGeometry(Part.ArcOfCircle(Part.Circle(V(-64.4, 8.8, 0), V(0, 0, 1), 3), math.radians(0), math.radians(246)), False)
sketch21.addGeometry(Part.ArcOfCircle(Part.Circle(V(-64.4, 8.8, 0), V(0, 0, 1), 3), math.radians(-66), math.radians(0)), False)
sketch21.addGeometry(Part.ArcOfCircle(Part.Circle(V(-64.4, 3.3, 0), V(0, 0, 1), 3), math.radians(0), math.radians(66)), False)
sketch21.addGeometry(Part.ArcOfCircle(Part.Circle(V(-92.4, 29.3, 0), V(0, 0, 1), 3), math.radians(114), math.radians(360)), False)
sketch21.addGeometry(Part.ArcOfCircle(Part.Circle(V(-92.4, 34.8, 0), V(0, 0, 1), 3), math.radians(0), math.radians(246)), False)
sketch21.addGeometry(Part.ArcOfCircle(Part.Circle(V(-92.4, 34.8, 0), V(0, 0, 1), 3), math.radians(-66), math.radians(0)), False)
sketch21.addGeometry(Part.ArcOfCircle(Part.Circle(V(-92.4, 29.3, 0), V(0, 0, 1), 3), math.radians(0), math.radians(66)), False)
sketch21.addGeometry(Part.Circle(V(-92.4, 55.3, 0), V(0, 0, 1), 3), False)
sketch21.addGeometry(Part.ArcOfCircle(Part.Circle(V(-64.4, 29.3, 0), V(0, 0, 1), 3), math.radians(114), math.radians(360)), False)
sketch21.addGeometry(Part.ArcOfCircle(Part.Circle(V(-64.4, 34.8, 0), V(0, 0, 1), 3), math.radians(0), math.radians(246)), False)
sketch21.addGeometry(Part.ArcOfCircle(Part.Circle(V(-64.4, 34.8, 0), V(0, 0, 1), 3), math.radians(-66), math.radians(0)), False)
sketch21.addGeometry(Part.ArcOfCircle(Part.Circle(V(-64.4, 29.3, 0), V(0, 0, 1), 3), math.radians(0), math.radians(66)), False)
sketch21.addGeometry(Part.Circle(V(-64.4, 55.3, 0), V(0, 0, 1), 3), False)
sketch21.addConstraint(Sketcher.Constraint("Coincident", 0, 2, 1, 1))
sketch21.addConstraint(Sketcher.Constraint("Coincident", 1, 2, 2, 1))
sketch21.addConstraint(Sketcher.Constraint("Coincident", 2, 2, 3, 1))
sketch21.addConstraint(Sketcher.Constraint("Coincident", 3, 2, 0, 1))
sketch21.addConstraint(Sketcher.Constraint("Coincident", 5, 1, 6, 2))
sketch21.addConstraint(Sketcher.Constraint("Tangent", 6, 1, 7, 2))
sketch21.addConstraint(Sketcher.Constraint("Coincident", 7, 1, 8, 2))
sketch21.addConstraint(Sketcher.Constraint("Tangent", 8, 1, 5, 2))
sketch21.addConstraint(Sketcher.Constraint("Coincident", 10, 1, 11, 2))
sketch21.addConstraint(Sketcher.Constraint("Tangent", 11, 1, 12, 2))
sketch21.addConstraint(Sketcher.Constraint("Coincident", 12, 1, 13, 2))
sketch21.addConstraint(Sketcher.Constraint("Tangent", 13, 1, 10, 2))
sketch21.addConstraint(Sketcher.Constraint("Coincident", 14, 1, 15, 2))
sketch21.addConstraint(Sketcher.Constraint("Tangent", 15, 1, 16, 2))
sketch21.addConstraint(Sketcher.Constraint("Coincident", 16, 1, 17, 2))
sketch21.addConstraint(Sketcher.Constraint("Tangent", 17, 1, 14, 2))
sketch21.addConstraint(Sketcher.Constraint("Coincident", 19, 1, 20, 2))
sketch21.addConstraint(Sketcher.Constraint("Tangent", 20, 1, 21, 2))
sketch21.addConstraint(Sketcher.Constraint("Coincident", 21, 1, 22, 2))
sketch21.addConstraint(Sketcher.Constraint("Tangent", 22, 1, 19, 2))
sketch21.addConstraint(Sketcher.Constraint("Vertical", 0))
sketch21.addConstraint(Sketcher.Constraint("Horizontal", 1))
sketch21.addConstraint(Sketcher.Constraint("Vertical", 2))
sketch21.addConstraint(Sketcher.Constraint("Horizontal", 3))
sketch21.addConstraint(Sketcher.Constraint("Equal", 4, 5))
sketch21.addConstraint(Sketcher.Constraint("Equal", 5, 6))
sketch21.addConstraint(Sketcher.Constraint("Equal", 6, 7))
sketch21.addConstraint(Sketcher.Constraint("Equal", 7, 8))
sketch21.addConstraint(Sketcher.Constraint("Equal", 8, 9))
sketch21.addConstraint(Sketcher.Constraint("Equal", 9, 10))
sketch21.addConstraint(Sketcher.Constraint("Equal", 10, 11))
sketch21.addConstraint(Sketcher.Constraint("Equal", 11, 12))
sketch21.addConstraint(Sketcher.Constraint("Equal", 12, 13))
sketch21.addConstraint(Sketcher.Constraint("Equal", 13, 14))
sketch21.addConstraint(Sketcher.Constraint("Equal", 14, 15))
sketch21.addConstraint(Sketcher.Constraint("Equal", 15, 16))
sketch21.addConstraint(Sketcher.Constraint("Equal", 16, 17))
sketch21.addConstraint(Sketcher.Constraint("Equal", 17, 18))
sketch21.addConstraint(Sketcher.Constraint("Equal", 18, 19))
sketch21.addConstraint(Sketcher.Constraint("Equal", 19, 20))
sketch21.addConstraint(Sketcher.Constraint("Equal", 20, 21))
sketch21.addConstraint(Sketcher.Constraint("Equal", 21, 22))
sketch21.addConstraint(Sketcher.Constraint("Equal", 22, 23))
sketch21.addConstraint(Sketcher.Constraint("Horizontal", 4, 3, 9, 3))
sketch21.addConstraint(Sketcher.Constraint("Horizontal", 8, 3, 10, 3))
sketch21.addConstraint(Sketcher.Constraint("Horizontal", 7, 3, 11, 3))
sketch21.addConstraint(Sketcher.Constraint("Horizontal", 17, 3, 19, 3))
sketch21.addConstraint(Sketcher.Constraint("Horizontal", 16, 3, 20, 3))
sketch21.addConstraint(Sketcher.Constraint("Horizontal", 18, 3, 23, 3))
sketch21.addConstraint(Sketcher.Constraint("Horizontal", 12, 3, 6, 1))
sketch21.addConstraint(Sketcher.Constraint("Horizontal", 5, 1, 7, 1))
sketch21.addConstraint(Sketcher.Constraint("Horizontal", 13, 3, 8, 1))
sketch21.addConstraint(Sketcher.Constraint("Horizontal", 7, 1, 10, 1))
sketch21.addConstraint(Sketcher.Constraint("Horizontal", 6, 1, 11, 1))
sketch21.addConstraint(Sketcher.Constraint("Horizontal", 8, 1, 13, 1))
sketch21.addConstraint(Sketcher.Constraint("Horizontal", 21, 3, 15, 1))
sketch21.addConstraint(Sketcher.Constraint("Horizontal", 14, 1, 16, 1))
sketch21.addConstraint(Sketcher.Constraint("Horizontal", 22, 3, 17, 1))
sketch21.addConstraint(Sketcher.Constraint("Horizontal", 16, 1, 19, 1))
sketch21.addConstraint(Sketcher.Constraint("Horizontal", 15, 1, 20, 1))
sketch21.addConstraint(Sketcher.Constraint("Horizontal", 17, 1, 22, 1))
sketch21.addConstraint(Sketcher.Constraint("Vertical", 4, 3, 5, 3))
sketch21.addConstraint(Sketcher.Constraint("Vertical", 9, 3, 10, 3))
sketch21.addConstraint(Sketcher.Constraint("Vertical", 8, 3, 14, 3))
sketch21.addConstraint(Sketcher.Constraint("Vertical", 17, 3, 18, 3))
sketch21.addConstraint(Sketcher.Constraint("Vertical", 13, 3, 19, 3))
sketch21.addConstraint(Sketcher.Constraint("Vertical", 22, 3, 23, 3))
sketch21.addConstraint(Sketcher.Constraint("Vertical", 5, 1, 14, 1))
sketch21.addConstraint(Sketcher.Constraint("Diameter", 4, 6.0))
sketch21.addConstraint(Sketcher.Constraint("DistanceX", 1, 1, 1, 2, 100.0))
sketch21.addConstraint(Sketcher.Constraint("DistanceY", 0, 2, 0, 1, 84.0))
sketch21.addConstraint(Sketcher.Constraint("DistanceY", 4, 3, 6, 3, 26.0))
sketch21.addConstraint(Sketcher.Constraint("DistanceX", 4, 3, 9, 3, 28.0))
sketch21.addConstraint(Sketcher.Constraint("DistanceY", 5, 3, 14, 3, 26.0))
sketch21.addConstraint(Sketcher.Constraint("DistanceY", 14, 3, 18, 3, 26.0))
sketch21.addConstraint(Sketcher.Constraint("DistanceX", 0, 2, 4, 3, 5.0))
sketch21.addConstraint(Sketcher.Constraint("DistanceY", 4, 3, 5, 3, 20.5))
sketch21.addConstraint(Sketcher.Constraint("DistanceY", 0, 2, 4, 3, 6.3))
sketch21.addConstraint(Sketcher.Constraint("DistanceX", 4, 3, -1, 1, 92.440331))
sketch21.addConstraint(Sketcher.Constraint("DistanceY", 4, 3, -1, 1, 17.232195))
sketch21.setExpression("Constraints[68]", "Params.sketch21_diameter")
sketch21.setExpression("Constraints[69]", "Params.sketch21_width")
sketch21.setExpression("Constraints[70]", "Params.sketch21_height")
pad21 = body21.newObject("PartDesign::Pad", "Pad020")
pad21.Profile = sketch21
pad21.setExpression("Length", "Params.pad21_length")
doc.recompute()

boolean = body21.newObject("PartDesign::Boolean", "Boolean")
boolean.Type = "Fuse"
boolean.addObjects([body13])
doc.recompute()

boolean2 = body21.newObject("PartDesign::Boolean", "Boolean001")
boolean2.Type = "Fuse"
boolean2.addObjects([body20])
doc.recompute()

boolean3 = body21.newObject("PartDesign::Boolean", "Boolean002")
boolean3.Type = "Fuse"
boolean3.addObjects([body14])
doc.recompute()

boolean4 = body21.newObject("PartDesign::Boolean", "Boolean003")
boolean4.Type = "Fuse"
boolean4.addObjects([body15])
doc.recompute()

boolean5 = body21.newObject("PartDesign::Boolean", "Boolean004")
boolean5.Type = "Fuse"
boolean5.addObjects([body19])
doc.recompute()

boolean6 = body21.newObject("PartDesign::Boolean", "Boolean005")
boolean6.Type = "Fuse"
boolean6.addObjects([body16])
doc.recompute()

boolean7 = body21.newObject("PartDesign::Boolean", "Boolean006")
boolean7.Type = "Fuse"
boolean7.addObjects([body18])
doc.recompute()

boolean8 = body21.newObject("PartDesign::Boolean", "Boolean007")
boolean8.Type = "Fuse"
boolean8.addObjects([body17])
doc.recompute()

boolean9 = body21.newObject("PartDesign::Boolean", "Boolean008")
boolean9.Type = "Fuse"
boolean9.addObjects([body])
doc.recompute()

boolean10 = body21.newObject("PartDesign::Boolean", "Boolean009")
boolean10.Type = "Fuse"
boolean10.addObjects([body12])
doc.recompute()

boolean11 = body21.newObject("PartDesign::Boolean", "Boolean010")
boolean11.Type = "Fuse"
boolean11.addObjects([body2])
doc.recompute()

boolean12 = body21.newObject("PartDesign::Boolean", "Boolean011")
boolean12.Type = "Fuse"
boolean12.addObjects([body3])
doc.recompute()

boolean13 = body21.newObject("PartDesign::Boolean", "Boolean012")
boolean13.Type = "Fuse"
boolean13.addObjects([body11])
doc.recompute()

boolean14 = body21.newObject("PartDesign::Boolean", "Boolean013")
boolean14.Type = "Fuse"
boolean14.addObjects([body4])
doc.recompute()

boolean15 = body21.newObject("PartDesign::Boolean", "Boolean014")
boolean15.Type = "Fuse"
boolean15.addObjects([body10])
doc.recompute()

boolean16 = body21.newObject("PartDesign::Boolean", "Boolean015")
boolean16.Type = "Fuse"
boolean16.addObjects([body5])
doc.recompute()

boolean17 = body21.newObject("PartDesign::Boolean", "Boolean016")
boolean17.Type = "Fuse"
boolean17.addObjects([body9])
doc.recompute()

boolean18 = body21.newObject("PartDesign::Boolean", "Boolean017")
boolean18.Type = "Fuse"
boolean18.addObjects([body6])
doc.recompute()

boolean19 = body21.newObject("PartDesign::Boolean", "Boolean018")
boolean19.Type = "Fuse"
boolean19.addObjects([body8])
doc.recompute()

boolean20 = body21.newObject("PartDesign::Boolean", "Boolean019")
boolean20.Type = "Fuse"
boolean20.addObjects([body7])
doc.recompute()

fillet = body21.newObject("PartDesign::Fillet", "Fillet")
fillet.Base = (boolean20, edges_at(boolean20, [
    (-97.44, -23.532, 1.5),
    (2.56, -23.532, 1.5),
    (2.56, 60.468, 1.5),
    (-97.44, 60.468, 1.5),
]))
fillet.setExpression("Radius", "Params.fillet_radius")
doc.recompute()

chamfer = body21.newObject("PartDesign::Chamfer", "Chamfer")
chamfer.Base = (fillet, edges_at(fillet, [
    (-47.44, 60.468, 0),
    (1.095, 59.003, 0),
    (-95.976, 59.003, 0),
    (2.56, 18.468, 0),
    (-97.44, 18.468, 0),
    (1.095, -22.068, 0),
    (-95.976, -22.068, 0),
    (-47.44, -23.532, 0),
]))
chamfer.setExpression("Size", "Params.chamfer_size")
doc.recompute()

chamfer2 = body21.newObject("PartDesign::Chamfer", "Chamfer001")
chamfer2.Base = (chamfer, edges_at(chamfer, [
    (-47.44, 60.468, 3),
    (1.095, 59.003, 3),
    (-95.976, 59.003, 3),
    (2.56, 18.468, 3),
    (-97.44, 18.468, 3),
    (1.095, -22.068, 3),
    (-95.976, -22.068, 3),
    (-47.44, -23.532, 3),
    (-95.44, -17.232, 3),
    (-67.44, -17.232, 3),
    (-94.084, 0.758, 3),
    (-94.084, 11.277, 3),
    (-66.084, 0.758, 3),
    (-66.084, 11.277, 3),
    (-94.084, 37.277, 3),
    (-94.084, 26.758, 3),
    (-66.084, 26.758, 3),
    (-66.084, 37.277, 3),
    (-95.44, 55.268, 3),
    (-67.44, 55.268, 3),
]))
chamfer2.setExpression("Size", "Params.chamfer2_size")

doc.recompute()
